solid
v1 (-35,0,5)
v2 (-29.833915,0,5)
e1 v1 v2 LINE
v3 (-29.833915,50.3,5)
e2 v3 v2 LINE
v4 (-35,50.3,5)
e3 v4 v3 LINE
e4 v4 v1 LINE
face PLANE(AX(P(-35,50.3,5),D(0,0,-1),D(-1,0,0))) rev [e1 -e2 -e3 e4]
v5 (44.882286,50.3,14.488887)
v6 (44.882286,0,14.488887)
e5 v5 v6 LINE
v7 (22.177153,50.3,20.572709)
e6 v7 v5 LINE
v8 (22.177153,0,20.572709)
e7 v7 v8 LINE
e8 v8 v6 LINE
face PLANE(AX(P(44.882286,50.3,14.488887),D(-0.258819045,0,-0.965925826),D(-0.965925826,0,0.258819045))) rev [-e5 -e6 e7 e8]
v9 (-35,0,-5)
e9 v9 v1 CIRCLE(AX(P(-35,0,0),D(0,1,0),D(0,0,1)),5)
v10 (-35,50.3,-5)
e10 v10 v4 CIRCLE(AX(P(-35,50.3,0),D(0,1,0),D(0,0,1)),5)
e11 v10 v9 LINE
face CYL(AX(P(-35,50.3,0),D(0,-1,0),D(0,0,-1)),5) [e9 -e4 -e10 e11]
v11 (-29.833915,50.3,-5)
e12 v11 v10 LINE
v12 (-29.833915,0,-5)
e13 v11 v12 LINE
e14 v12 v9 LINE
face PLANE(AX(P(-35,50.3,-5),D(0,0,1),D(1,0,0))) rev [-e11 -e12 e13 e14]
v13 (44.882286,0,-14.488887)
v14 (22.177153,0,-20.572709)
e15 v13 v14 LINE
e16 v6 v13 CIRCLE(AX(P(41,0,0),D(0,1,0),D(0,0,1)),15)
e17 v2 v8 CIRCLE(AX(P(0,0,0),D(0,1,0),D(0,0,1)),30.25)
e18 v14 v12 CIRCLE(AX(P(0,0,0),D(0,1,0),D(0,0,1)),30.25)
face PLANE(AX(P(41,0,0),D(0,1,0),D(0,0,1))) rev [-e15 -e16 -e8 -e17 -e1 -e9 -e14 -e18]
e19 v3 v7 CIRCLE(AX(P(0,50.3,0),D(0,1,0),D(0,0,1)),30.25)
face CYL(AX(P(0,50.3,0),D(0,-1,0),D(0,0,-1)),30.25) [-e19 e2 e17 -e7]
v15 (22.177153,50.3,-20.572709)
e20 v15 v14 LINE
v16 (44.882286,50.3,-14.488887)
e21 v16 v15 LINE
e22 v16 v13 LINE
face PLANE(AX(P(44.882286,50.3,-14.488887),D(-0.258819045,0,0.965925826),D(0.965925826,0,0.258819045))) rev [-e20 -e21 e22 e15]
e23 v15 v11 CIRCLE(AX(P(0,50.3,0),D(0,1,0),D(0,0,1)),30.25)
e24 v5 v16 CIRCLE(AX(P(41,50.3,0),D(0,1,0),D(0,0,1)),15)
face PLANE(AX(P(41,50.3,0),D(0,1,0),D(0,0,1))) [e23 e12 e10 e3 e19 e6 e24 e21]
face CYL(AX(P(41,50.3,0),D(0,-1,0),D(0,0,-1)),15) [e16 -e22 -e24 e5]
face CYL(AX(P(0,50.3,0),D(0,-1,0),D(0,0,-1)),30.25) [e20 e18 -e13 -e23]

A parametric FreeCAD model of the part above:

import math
import FreeCAD as App
import Part
import Sketcher
Q = App.Units.Quantity

doc = App.newDocument("Part")
body = doc.addObject("PartDesign::Body", "Body")

# Sketch on XZ plane
sketch1 = doc.addObject("Sketcher::SketchObject", "Sketch")
body.addObject(sketch1)
sketch1.AttachmentSupport = (doc.XZ_Plane, [""])
sketch1.MapMode = "FlatFace"
sketch1.addGeometry([
    Part.LineSegment(App.Vector(-30, -5, 0), App.Vector(-35, -5, 0)),  # 0
    Part.ArcOfCircle(Part.Circle(App.Vector(-35, 0, 0), App.Vector(0, 0, 1), 5), math.radians(90), math.radians(270)),  # 1
    Part.LineSegment(App.Vector(-35, 5, 0), App.Vector(-30, 5, 0)),  # 2
    Part.ArcOfCircle(Part.Circle(App.Vector(0, 0, 0), App.Vector(0, 0, 1), 30), math.radians(43), math.radians(170)),  # 3
    Part.LineSegment(App.Vector(22, 21, 0), App.Vector(45, 14, 0)),  # 4
    Part.ArcOfCircle(Part.Circle(App.Vector(41, 0, 0), App.Vector(0, 0, 1), 15), math.radians(-75), math.radians(75)),  # 5
    Part.LineSegment(App.Vector(45, -14, 0), App.Vector(22, -21, 0)),  # 6
    Part.ArcOfCircle(Part.Circle(App.Vector(0, 0, 0), App.Vector(0, 0, 1), 30), math.radians(-170), math.radians(-43)),  # 7
], False)
sketch1.addConstraint([
    Sketcher.Constraint("Tangent", 0, 2, 1, 2),
    Sketcher.Constraint("Tangent", 1, 1, 2, 1),
    Sketcher.Constraint("Coincident", 2, 2, 3, 2),
    Sketcher.Constraint("Coincident", 3, 1, 4, 1),
    Sketcher.Constraint("Tangent", 4, 2, 5, 2),
    Sketcher.Constraint("Tangent", 5, 1, 6, 1),
    Sketcher.Constraint("Coincident", 6, 2, 7, 2),
    Sketcher.Constraint("Coincident", 7, 1, 0, 1),
    Sketcher.Constraint("Horizontal", 0),
    Sketcher.Constraint("Horizontal", 2),
    Sketcher.Constraint("Coincident", 3, 3, -1, 1),
    Sketcher.Constraint("Coincident", 7, 3, -1, 1),
    Sketcher.Constraint("Equal", 3, 7),
    Sketcher.Constraint("Symmetric", 4, 2, 5, 1, -1),
    Sketcher.Constraint("PointOnObject", 1, 3, -1),
    Sketcher.Constraint("Radius", 1, Q("5 mm")),
    Sketcher.Constraint("Radius", 5, Q("15 mm")),
    Sketcher.Constraint("Angle", 4, Q("-15 deg")),
    Sketcher.Constraint("Radius", 3, Q("30.25 mm")),
    Sketcher.Constraint("DistanceX", 1, 3, -1, 1, Q("35 mm")),
    Sketcher.Constraint("DistanceX", -1, 1, 5, 3, Q("41 mm")),
])
pad1 = doc.addObject("PartDesign::Pad", "Pad")
body.addObject(pad1)
pad1.Profile = sketch1
pad1.Length = 50.3
pad1.Reversed = True

doc.recompute()
